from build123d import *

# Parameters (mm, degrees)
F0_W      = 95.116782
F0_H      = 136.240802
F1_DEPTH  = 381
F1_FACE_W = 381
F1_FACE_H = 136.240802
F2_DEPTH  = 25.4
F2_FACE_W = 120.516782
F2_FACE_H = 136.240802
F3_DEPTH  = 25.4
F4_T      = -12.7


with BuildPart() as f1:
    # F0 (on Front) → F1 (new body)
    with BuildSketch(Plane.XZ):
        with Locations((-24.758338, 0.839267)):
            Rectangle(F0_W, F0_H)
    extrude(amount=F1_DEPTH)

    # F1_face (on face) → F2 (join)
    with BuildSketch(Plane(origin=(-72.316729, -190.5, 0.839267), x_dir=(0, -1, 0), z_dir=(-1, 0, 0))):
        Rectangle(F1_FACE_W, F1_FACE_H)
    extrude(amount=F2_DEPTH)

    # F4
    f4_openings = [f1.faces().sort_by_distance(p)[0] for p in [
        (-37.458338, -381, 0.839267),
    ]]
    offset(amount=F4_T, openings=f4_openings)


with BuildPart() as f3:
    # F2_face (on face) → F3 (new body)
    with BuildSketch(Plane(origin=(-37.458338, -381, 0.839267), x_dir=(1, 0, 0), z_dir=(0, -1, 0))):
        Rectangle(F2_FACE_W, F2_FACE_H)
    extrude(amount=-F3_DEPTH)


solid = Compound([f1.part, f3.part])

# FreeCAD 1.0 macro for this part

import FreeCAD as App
import Part
import Sketcher
from FreeCAD import Vector
Q = App.Units.Quantity


def faces_at(feature, points):
    """Names of the faces that lie closest to the given points."""
    faces = feature.Shape.Faces
    near = lambda p: min(range(len(faces)), key=lambda i: faces[i].distToShape(Part.Vertex(*p))[0])
    return sorted({f"Face{near(p) + 1}" for p in points})

doc = App.newDocument("Part")
body = doc.addObject("PartDesign::Body", "Body")

# Sketch on XZ plane
sketch1 = doc.addObject("Sketcher::SketchObject", "Sketch")
body.addObject(sketch1)
sketch1.AttachmentSupport = (doc.XZ_Plane, [""])
sketch1.MapMode = "FlatFace"
sketch1.addGeometry([
    Part.LineSegment(Vector(-72, 69, 0), Vector(-72, -67, 0)),
    Part.LineSegment(Vector(-72, -67, 0), Vector(23, -67, 0)),
    Part.LineSegment(Vector(23, -67, 0), Vector(23, 69, 0)),
    Part.LineSegment(Vector(23, 69, 0), Vector(-72, 69, 0)),
], False)
sketch1.addConstraint([
    Sketcher.Constraint("Coincident", 0, 2, 1, 1),
    Sketcher.Constraint("Coincident", 1, 2, 2, 1),
    Sketcher.Constraint("Coincident", 2, 2, 3, 1),
    Sketcher.Constraint("Coincident", 3, 2, 0, 1),
    Sketcher.Constraint("Vertical", 0),
    Sketcher.Constraint("Horizontal", 1),
    Sketcher.Constraint("Vertical", 2),
    Sketcher.Constraint("Horizontal", 3),
    Sketcher.Constraint("DistanceY", 0, 2, 0, 1, 136.240802),
    Sketcher.Constraint("DistanceX", 1, 1, 1, 2, 95.116782),
    Sketcher.Constraint("DistanceX", 0, 2, -1, 1, 72.316729),
    Sketcher.Constraint("DistanceY", 0, 2, -1, 1, 67.281134),
])
pad1 = doc.addObject("PartDesign::Pad", "Pad")
body.addObject(pad1)
pad1.Profile = sketch1
pad1.Length = Q("15 in")

# Sketch on YZ plane
sketch2 = doc.addObject("Sketcher::SketchObject", "Sketch001")
body.addObject(sketch2)
sketch2.AttachmentSupport = (doc.YZ_Plane, [""])
sketch2.MapMode = "FlatFace"
sketch2.AttachmentOffset = App.Placement(Vector(0, 0, -72.316729), App.Rotation())
sketch2.addGeometry([
    Part.LineSegment(Vector(0, 69, 0), Vector(0, -67, 0)),
    Part.LineSegment(Vector(0, -67, 0), Vector(-381, -67, 0)),
    Part.LineSegment(Vector(-381, -67, 0), Vector(-381, 69, 0)),
    Part.LineSegment(Vector(-381, 69, 0), Vector(0, 69, 0)),
], False)
sketch2.addConstraint([
    Sketcher.Constraint("Coincident", 0, 2, 1, 1),
    Sketcher.Constraint("Coincident", 1, 2, 2, 1),
    Sketcher.Constraint("Coincident", 2, 2, 3, 1),
    Sketcher.Constraint("Coincident", 3, 2, 0, 1),
    Sketcher.Constraint("Vertical", 0),
    Sketcher.Constraint("Horizontal", 1),
    Sketcher.Constraint("Vertical", 2),
    Sketcher.Constraint("Horizontal", 3),
    Sketcher.Constraint("PointOnObject", 0, 2, -2),
    Sketcher.Constraint("DistanceX", 1, 2, 1, 1, Q("15 in")),
    Sketcher.Constraint("DistanceY", 0, 2, 0, 1, 136.240802),
    Sketcher.Constraint("DistanceY", 0, 2, -1, 1, 67.281134),
])
pad2 = doc.addObject("PartDesign::Pad", "Pad001")
body.addObject(pad2)
pad2.Profile = sketch2
pad2.Length = Q("1 in")
pad2.Reversed = True
doc.recompute()

thickness = doc.addObject("PartDesign::Thickness", "Thickness")
body.addObject(thickness)
thickness.Base = (pad2, faces_at(pad2, [(-37.458, -381, 0.839)]))
thickness.Value = Q("0.5 in")
thickness.Reversed = True
thickness.Join = "Arc"
body2 = doc.addObject("PartDesign::Body", "Body001")

# Sketch on XZ plane
sketch3 = doc.addObject("Sketcher::SketchObject", "Sketch002")
body2.addObject(sketch3)
sketch3.AttachmentSupport = (doc.getObject("XZ_Plane001"), [""])
sketch3.MapMode = "FlatFace"
sketch3.AttachmentOffset = App.Placement(Vector(0, 0, 15 * 25.4), App.Rotation())
sketch3.addGeometry([
    Part.LineSegment(Vector(-98, 69, 0), Vector(-98, -67, 0)),
    Part.LineSegment(Vector(-98, -67, 0), Vector(23, -67, 0)),
    Part.LineSegment(Vector(23, -67, 0), Vector(23, 69, 0)),
    Part.LineSegment(Vector(23, 69, 0), Vector(-98, 69, 0)),
], False)
sketch3.addConstraint([
    Sketcher.Constraint("Coincident", 0, 2, 1, 1),
    Sketcher.Constraint("Coincident", 1, 2, 2, 1),
    Sketcher.Constraint("Coincident", 2, 2, 3, 1),
    Sketcher.Constraint("Coincident", 3, 2, 0, 1),
    Sketcher.Constraint("Vertical", 0),
    Sketcher.Constraint("Horizontal", 1),
    Sketcher.Constraint("Vertical", 2),
    Sketcher.Constraint("Horizontal", 3),
    Sketcher.Constraint("DistanceY", 0, 2, 0, 1, 136.240802),
    Sketcher.Constraint("DistanceX", 1, 1, 1, 2, 120.516782),
    Sketcher.Constraint("DistanceX", 0, 2, -1, 1, 97.716729),
    Sketcher.Constraint("DistanceY", 0, 2, -1, 1, 67.281134),
])
pad3 = doc.addObject("PartDesign::Pad", "Pad002")
body2.addObject(pad3)
pad3.Profile = sketch3
pad3.Length = Q("1 in")
pad3.Reversed = True

doc.recompute()
